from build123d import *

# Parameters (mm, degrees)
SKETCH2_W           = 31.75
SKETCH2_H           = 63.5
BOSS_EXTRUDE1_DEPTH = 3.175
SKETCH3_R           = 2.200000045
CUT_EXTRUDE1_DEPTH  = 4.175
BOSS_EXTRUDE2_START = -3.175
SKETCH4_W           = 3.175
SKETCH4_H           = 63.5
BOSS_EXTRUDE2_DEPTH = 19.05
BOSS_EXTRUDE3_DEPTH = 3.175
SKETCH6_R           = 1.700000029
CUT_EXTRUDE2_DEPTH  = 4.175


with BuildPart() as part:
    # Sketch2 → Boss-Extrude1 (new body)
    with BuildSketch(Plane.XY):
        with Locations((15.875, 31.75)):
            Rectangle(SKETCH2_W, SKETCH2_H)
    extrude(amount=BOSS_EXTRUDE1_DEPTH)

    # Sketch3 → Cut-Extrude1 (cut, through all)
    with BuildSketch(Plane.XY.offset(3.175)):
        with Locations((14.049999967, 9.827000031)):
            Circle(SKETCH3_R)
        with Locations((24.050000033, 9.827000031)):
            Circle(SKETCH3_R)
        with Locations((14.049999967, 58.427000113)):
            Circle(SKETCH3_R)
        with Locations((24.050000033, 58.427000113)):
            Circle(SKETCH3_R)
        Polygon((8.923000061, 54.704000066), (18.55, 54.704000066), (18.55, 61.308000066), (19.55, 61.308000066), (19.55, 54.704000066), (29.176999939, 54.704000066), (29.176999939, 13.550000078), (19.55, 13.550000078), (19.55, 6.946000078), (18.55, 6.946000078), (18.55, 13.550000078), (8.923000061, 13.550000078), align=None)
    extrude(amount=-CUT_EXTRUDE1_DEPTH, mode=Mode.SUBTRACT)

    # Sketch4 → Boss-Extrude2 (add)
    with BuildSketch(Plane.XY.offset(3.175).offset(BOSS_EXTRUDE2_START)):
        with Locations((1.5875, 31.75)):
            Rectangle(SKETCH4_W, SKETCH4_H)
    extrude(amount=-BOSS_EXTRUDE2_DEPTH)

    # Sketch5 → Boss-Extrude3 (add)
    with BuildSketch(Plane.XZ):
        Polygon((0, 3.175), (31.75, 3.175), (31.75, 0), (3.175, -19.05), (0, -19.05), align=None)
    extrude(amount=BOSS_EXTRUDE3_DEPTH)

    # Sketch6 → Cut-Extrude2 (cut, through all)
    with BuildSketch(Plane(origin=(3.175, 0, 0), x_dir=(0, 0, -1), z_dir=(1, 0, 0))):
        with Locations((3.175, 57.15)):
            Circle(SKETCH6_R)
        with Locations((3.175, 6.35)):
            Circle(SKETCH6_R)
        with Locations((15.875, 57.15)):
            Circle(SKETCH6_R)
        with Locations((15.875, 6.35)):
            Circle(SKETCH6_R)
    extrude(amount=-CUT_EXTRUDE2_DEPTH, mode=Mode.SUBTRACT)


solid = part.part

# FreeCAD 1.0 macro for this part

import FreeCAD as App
import Part
import Sketcher

V = App.Vector
Q = App.Units.Quantity


def add_polygon(sketch, points):
    """Adds a closed chain of lines whose ends are joined by coincident constraints."""
    first, n = sketch.GeometryCount, len(points)
    for a, b in zip(points, points[1:] + points[:1]):
        sketch.addGeometry(Part.LineSegment(App.Vector(*a, 0), App.Vector(*b, 0)), False)
    for i in range(n):
        sketch.addConstraint(Sketcher.Constraint("Coincident", first + i, 2, first + (i + 1) % n, 1))

doc = App.newDocument("Part")
params = doc.addObject("Spreadsheet::Sheet", "Params")
for row, (alias, value) in enumerate([
    ("sketch1_height", "2.5 in"),
    ("sketch1_width", "1.25 in"),
    ("pad1_length", "0.125 in"),
    ("sketch2_height", "0.26 in"),
    ("sketch3_height", "2.5 in"),
    ("sketch3_width", "0.125 in"),
    ("pad2_length", "0.75 in"),
    ("sketch4_width", "1.25 in"),
    ("sketch4_width2", "0.125 in"),
    ("sketch4_height", "0.875 in"),
    ("pad3_length", "0.125 in"),
], start=1):
    params.set(f"A{row}", alias)
    params.set(f"B{row}", "=" + value)
    params.setAlias(f"B{row}", alias)

body = doc.addObject("PartDesign::Body", "Body")

sketch1 = body.newObject("Sketcher::SketchObject", "Sketch")
sketch1.AttachmentSupport = (doc.getObject("XY_Plane"), [""])
sketch1.MapMode = "FlatFace"
add_polygon(sketch1, [(0, 64), (0, 0), (32, 0), (32, 64)])
sketch1.addConstraint([
    Sketcher.Constraint("Vertical", 0),
    Sketcher.Constraint("Horizontal", 1),
    Sketcher.Constraint("Vertical", 2),
    Sketcher.Constraint("Horizontal", 3),
    Sketcher.Constraint("Coincident", 0, 2, -1, 1),
    Sketcher.Constraint("DistanceY", 0, 2, 0, 1, Q("2.5 in")),
    Sketcher.Constraint("DistanceX", 1, 1, 1, 2, Q("1.25 in")),
])
sketch1.setExpression("Constraints[9]", "Params.sketch1_height")
sketch1.setExpression("Constraints[10]", "Params.sketch1_width")
pad1 = body.newObject("PartDesign::Pad", "Pad")
pad1.Profile = sketch1
pad1.setExpression("Length", "Params.pad1_length")

sketch2 = body.newObject("Sketcher::SketchObject", "Sketch001")
sketch2.AttachmentSupport = (doc.getObject("XY_Plane"), [""])
sketch2.MapMode = "FlatFace"
sketch2.AttachmentOffset = App.Placement(V(0, 0, 0.125 * 25.4), App.Rotation())
sketch2.addGeometry(Part.Circle(V(14, 9.8, 0), V(0, 0, 1), 2.2), False)
sketch2.addGeometry(Part.Circle(V(24.1, 9.8, 0), V(0, 0, 1), 2.2), False)
sketch2.addGeometry(Part.Circle(V(14, 58.4, 0), V(0, 0, 1), 2.2), False)
sketch2.addGeometry(Part.Circle(V(24.1, 58.4, 0), V(0, 0, 1), 2.2), False)
add_polygon(sketch2, [(18.6, 54.7), (8.9, 54.7), (8.9, 13.6), (18.6, 13.6), (18.6, 6.9), (19.6, 6.9), (19.6, 13.6), (29.2, 13.6), (29.2, 54.7), (19.6, 54.7), (19.6, 61.3), (18.6, 61.3)])
sketch2.addConstraint([
    Sketcher.Constraint("Horizontal", 4),
    Sketcher.Constraint("Vertical", 5),
    Sketcher.Constraint("Horizontal", 6),
    Sketcher.Constraint("Vertical", 7),
    Sketcher.Constraint("Horizontal", 8),
    Sketcher.Constraint("Vertical", 9),
    Sketcher.Constraint("Horizontal", 10),
    Sketcher.Constraint("Vertical", 11),
    Sketcher.Constraint("Horizontal", 12),
    Sketcher.Constraint("Vertical", 13),
    Sketcher.Constraint("Horizontal", 14),
    Sketcher.Constraint("Vertical", 15),
    Sketcher.Constraint("Equal", 0, 1),
    Sketcher.Constraint("Equal", 1, 2),
    Sketcher.Constraint("Equal", 2, 3),
    Sketcher.Constraint("Horizontal", 0, 3, 1, 3),
    Sketcher.Constraint("Horizontal", 2, 3, 3, 3),
    Sketcher.Constraint("Horizontal", 6, 2, 9, 2),
    Sketcher.Constraint("Horizontal", 4, 2, 11, 2),
    Sketcher.Constraint("Vertical", 0, 3, 2, 3),
    Sketcher.Constraint("Vertical", 1, 3, 3, 3),
    Sketcher.Constraint("Vertical", 9, 2, 12, 2),
    Sketcher.Constraint("Vertical", 7, 2, 14, 2),
    Sketcher.Constraint("Equal", 6, 10),
    Sketcher.Constraint("Equal", 9, 13),
    Sketcher.Constraint("DistanceY", 7, 2, 7, 1, Q("0.26 in")),
    Sketcher.Constraint("Diameter", 0, Q("4.4 mm")),
    Sketcher.Constraint("DistanceX", 4, 2, 4, 1, Q("9.627 mm")),
    Sketcher.Constraint("DistanceX", 8, 1, 8, 2, Q("1 mm")),
    Sketcher.Constraint("DistanceY", 5, 2, 5, 1, Q("41.154 mm")),
    Sketcher.Constraint("DistanceX", -1, 1, 0, 3, Q("14.05 mm")),
    Sketcher.Constraint("DistanceY", -1, 1, 0, 3, Q("9.827 mm")),
    Sketcher.Constraint("DistanceX", -1, 1, 1, 3, Q("24.05 mm")),
    Sketcher.Constraint("DistanceY", -1, 1, 2, 3, Q("58.427 mm")),
    Sketcher.Constraint("DistanceX", -1, 1, 4, 2, Q("8.923 mm")),
    Sketcher.Constraint("DistanceY", -1, 1, 4, 2, Q("54.704 mm")),
])
sketch2.setExpression("Constraints[37]", "Params.sketch2_height")
pocket1 = body.newObject("PartDesign::Pocket", "Pocket")
pocket1.Profile = sketch2
pocket1.Type = "ThroughAll"

sketch3 = body.newObject("Sketcher::SketchObject", "Sketch002")
sketch3.AttachmentSupport = (doc.getObject("XY_Plane"), [""])
sketch3.MapMode = "FlatFace"
add_polygon(sketch3, [(0, 63.5), (0, 0), (3.2, 0), (3.2, 63.5)])
sketch3.addConstraint([
    Sketcher.Constraint("Vertical", 0),
    Sketcher.Constraint("Horizontal", 1),
    Sketcher.Constraint("Vertical", 2),
    Sketcher.Constraint("Horizontal", 3),
    Sketcher.Constraint("Coincident", 0, 2, -1, 1),
    Sketcher.Constraint("DistanceY", 0, 2, 0, 1, Q("2.5 in")),
    Sketcher.Constraint("DistanceX", 1, 1, 1, 2, Q("0.125 in")),
])
sketch3.setExpression("Constraints[9]", "Params.sketch3_height")
sketch3.setExpression("Constraints[10]", "Params.sketch3_width")
pad2 = body.newObject("PartDesign::Pad", "Pad001")
pad2.Profile = sketch3
pad2.setExpression("Length", "Params.pad2_length")
pad2.Reversed = True

sketch4 = body.newObject("Sketcher::SketchObject", "Sketch003")
sketch4.AttachmentSupport = (doc.getObject("XZ_Plane"), [""])
sketch4.MapMode = "FlatFace"
add_polygon(sketch4, [(31.8, 3.2), (0, 3.2), (0, -19.1), (3.2, -19.1), (31.8, 0)])
sketch4.addConstraint([
    Sketcher.Constraint("Horizontal", 0),
    Sketcher.Constraint("Vertical", 1),
    Sketcher.Constraint("Horizontal", 2),
    Sketcher.Constraint("Vertical", 4),
    Sketcher.Constraint("PointOnObject", 0, 2, -2),
    Sketcher.Constraint("PointOnObject", 3, 2, -1),
    Sketcher.Constraint("Equal", 2, 4),
    Sketcher.Constraint("DistanceX", 0, 2, 0, 1, Q("1.25 in")),
    Sketcher.Constraint("DistanceX", 2, 1, 2, 2, Q("0.125 in")),
    Sketcher.Constraint("DistanceY", 1, 2, 1, 1, Q("0.875 in")),
])
sketch4.setExpression("Constraints[12]", "Params.sketch4_width")
sketch4.setExpression("Constraints[13]", "Params.sketch4_width2")
sketch4.setExpression("Constraints[14]", "Params.sketch4_height")
pad3 = body.newObject("PartDesign::Pad", "Pad002")
pad3.Profile = sketch4
pad3.setExpression("Length", "Params.pad3_length")

sketch5 = body.newObject("Sketcher::SketchObject", "Sketch004")
sketch5.AttachmentSupport = (doc.getObject("YZ_Plane"), [""])
sketch5.MapMode = "FlatFace"
sketch5.AttachmentOffset = App.Placement(V(0, 0, 0.125 * 25.4), App.Rotation())
sketch5.addGeometry([
    Part.Circle(V(57.1, -3.2, 0), V(0, 0, 1), 1.7),
    Part.Circle(V(6.3, -3.2, 0), V(0, 0, 1), 1.7),
    Part.Circle(V(57.1, -15.9, 0), V(0, 0, 1), 1.7),
    Part.Circle(V(6.3, -15.9, 0), V(0, 0, 1), 1.7),
], False)
sketch5.addConstraint([
    Sketcher.Constraint("Equal", 0, 1),
    Sketcher.Constraint("Equal", 1, 2),
    Sketcher.Constraint("Equal", 2, 3),
    Sketcher.Constraint("Horizontal", 0, 3, 1, 3),
    Sketcher.Constraint("Horizontal", 2, 3, 3, 3),
    Sketcher.Constraint("Vertical", 0, 3, 2, 3),
    Sketcher.Constraint("Vertical", 1, 3, 3, 3),
    Sketcher.Constraint("DistanceX", 1, 3, 0, 3, Q("2 in")),
    Sketcher.Constraint("DistanceY", 2, 3, 0, 3, Q("0.5 in")),
    Sketcher.Constraint("Diameter", 0, Q("3.4 mm")),
    Sketcher.Constraint("DistanceX", -1, 1, 0, 3, Q("2.25 in")),
    Sketcher.Constraint("DistanceY", 0, 3, -1, 1, Q("0.125 in")),
])
pocket2 = body.newObject("PartDesign::Pocket", "Pocket001")
pocket2.Profile = sketch5
pocket2.Type = "ThroughAll"

doc.recompute()
